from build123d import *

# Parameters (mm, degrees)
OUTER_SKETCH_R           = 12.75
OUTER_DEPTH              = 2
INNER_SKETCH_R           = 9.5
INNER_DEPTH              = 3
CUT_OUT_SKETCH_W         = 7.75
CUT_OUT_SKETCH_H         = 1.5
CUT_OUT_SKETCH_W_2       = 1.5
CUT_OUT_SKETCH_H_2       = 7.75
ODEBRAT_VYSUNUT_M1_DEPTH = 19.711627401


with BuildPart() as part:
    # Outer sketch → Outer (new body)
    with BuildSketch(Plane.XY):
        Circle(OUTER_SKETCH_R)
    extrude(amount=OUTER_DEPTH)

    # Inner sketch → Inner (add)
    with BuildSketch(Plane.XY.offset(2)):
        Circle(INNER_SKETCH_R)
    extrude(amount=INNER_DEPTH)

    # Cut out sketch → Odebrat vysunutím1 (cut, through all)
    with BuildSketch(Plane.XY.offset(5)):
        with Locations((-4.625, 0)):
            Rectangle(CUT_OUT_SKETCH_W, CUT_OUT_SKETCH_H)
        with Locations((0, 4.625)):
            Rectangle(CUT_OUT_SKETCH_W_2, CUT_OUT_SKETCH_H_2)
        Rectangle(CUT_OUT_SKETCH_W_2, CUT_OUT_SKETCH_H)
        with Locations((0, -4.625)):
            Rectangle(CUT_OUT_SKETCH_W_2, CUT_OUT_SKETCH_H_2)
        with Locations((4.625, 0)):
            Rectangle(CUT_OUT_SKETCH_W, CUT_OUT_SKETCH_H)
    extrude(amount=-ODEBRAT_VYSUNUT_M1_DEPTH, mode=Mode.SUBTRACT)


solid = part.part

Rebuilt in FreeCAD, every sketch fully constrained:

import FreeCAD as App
import Part
import Sketcher

V = App.Vector


def add_polygon(sketch, points):
    """Adds a closed chain of lines whose ends are joined by coincident constraints."""
    first, n = sketch.GeometryCount, len(points)
    for a, b in zip(points, points[1:] + points[:1]):
        sketch.addGeometry(Part.LineSegment(App.Vector(*a, 0), App.Vector(*b, 0)), False)
    for i in range(n):
        sketch.addConstraint(Sketcher.Constraint("Coincident", first + i, 2, first + (i + 1) % n, 1))

doc = App.newDocument("Part")
body = doc.addObject("PartDesign::Body", "Body")

sketch1 = doc.addObject("Sketcher::SketchObject", "Sketch")
body.addObject(sketch1)
sketch1.AttachmentSupport = (doc.XY_Plane, [""])
sketch1.MapMode = "FlatFace"
sketch1.addGeometry(Part.Circle(V(0, 0, 0), V(0, 0, 1), 13), False)
sketch1.addConstraint([
    Sketcher.Constraint("Coincident", 0, 3, -1, 1),
    Sketcher.Constraint("Diameter", 0, 25.5),
])
pad1 = doc.addObject("PartDesign::Pad", "Pad")
body.addObject(pad1)
pad1.Profile = sketch1
pad1.Length = 2

sketch2 = doc.addObject("Sketcher::SketchObject", "Sketch001")
body.addObject(sketch2)
sketch2.AttachmentSupport = (doc.XY_Plane, [""])
sketch2.MapMode = "FlatFace"
sketch2.AttachmentOffset = App.Placement(V(0, 0, 2), App.Rotation())
sketch2.addGeometry(Part.Circle(V(0, 0, 0), V(0, 0, 1), 10), False)
sketch2.addConstraint([
    Sketcher.Constraint("Coincident", 0, 3, -1, 1),
    Sketcher.Constraint("Diameter", 0, 19.0),
])
pad2 = doc.addObject("PartDesign::Pad", "Pad001")
body.addObject(pad2)
pad2.Profile = sketch2
pad2.Length = 3

sketch3 = doc.addObject("Sketcher::SketchObject", "Sketch002")
body.addObject(sketch3)
sketch3.AttachmentSupport = (doc.XY_Plane, [""])
sketch3.MapMode = "FlatFace"
sketch3.AttachmentOffset = App.Placement(V(0, 0, 5), App.Rotation())
add_polygon(sketch3, [(-8.5, 0.8), (-8.5, -0.8), (-0.8, -0.8), (-0.8, -8.5), (0.8, -8.5), (0.8, -0.8), (8.5, -0.8), (8.5, 0.8), (0.8, 0.8), (0.8, 8.5), (-0.8, 8.5), (-0.8, 0.8)])
sketch3.addConstraint([
    Sketcher.Constraint("Vertical", 0),
    Sketcher.Constraint("Horizontal", 1),
    Sketcher.Constraint("Vertical", 2),
    Sketcher.Constraint("Horizontal", 3),
    Sketcher.Constraint("Vertical", 4),
    Sketcher.Constraint("Horizontal", 5),
    Sketcher.Constraint("Vertical", 6),
    Sketcher.Constraint("Horizontal", 7),
    Sketcher.Constraint("Vertical", 8),
    Sketcher.Constraint("Horizontal", 9),
    Sketcher.Constraint("Vertical", 10),
    Sketcher.Constraint("Horizontal", 11),
    Sketcher.Constraint("Symmetric", 0, 2, 6, 2, -1, 1),
    Sketcher.Constraint("Symmetric", 2, 2, 8, 2, -1, 1),
    Sketcher.Constraint("Symmetric", 4, 2, 10, 2, -1, 1),
    Sketcher.Constraint("Symmetric", 1, 2, 4, 2, -2),
    Sketcher.Constraint("Equal", 9, 0),
    Sketcher.Constraint("Equal", 11, 2),
    Sketcher.Constraint("DistanceX", 3, 1, 3, 2, 1.5),
    Sketcher.Constraint("DistanceX", 0, 2, 5, 2, 17.0),
])
pocket1 = doc.addObject("PartDesign::Pocket", "Pocket")
body.addObject(pocket1)
pocket1.Profile = sketch3
pocket1.Type = "ThroughAll"

doc.recompute()
